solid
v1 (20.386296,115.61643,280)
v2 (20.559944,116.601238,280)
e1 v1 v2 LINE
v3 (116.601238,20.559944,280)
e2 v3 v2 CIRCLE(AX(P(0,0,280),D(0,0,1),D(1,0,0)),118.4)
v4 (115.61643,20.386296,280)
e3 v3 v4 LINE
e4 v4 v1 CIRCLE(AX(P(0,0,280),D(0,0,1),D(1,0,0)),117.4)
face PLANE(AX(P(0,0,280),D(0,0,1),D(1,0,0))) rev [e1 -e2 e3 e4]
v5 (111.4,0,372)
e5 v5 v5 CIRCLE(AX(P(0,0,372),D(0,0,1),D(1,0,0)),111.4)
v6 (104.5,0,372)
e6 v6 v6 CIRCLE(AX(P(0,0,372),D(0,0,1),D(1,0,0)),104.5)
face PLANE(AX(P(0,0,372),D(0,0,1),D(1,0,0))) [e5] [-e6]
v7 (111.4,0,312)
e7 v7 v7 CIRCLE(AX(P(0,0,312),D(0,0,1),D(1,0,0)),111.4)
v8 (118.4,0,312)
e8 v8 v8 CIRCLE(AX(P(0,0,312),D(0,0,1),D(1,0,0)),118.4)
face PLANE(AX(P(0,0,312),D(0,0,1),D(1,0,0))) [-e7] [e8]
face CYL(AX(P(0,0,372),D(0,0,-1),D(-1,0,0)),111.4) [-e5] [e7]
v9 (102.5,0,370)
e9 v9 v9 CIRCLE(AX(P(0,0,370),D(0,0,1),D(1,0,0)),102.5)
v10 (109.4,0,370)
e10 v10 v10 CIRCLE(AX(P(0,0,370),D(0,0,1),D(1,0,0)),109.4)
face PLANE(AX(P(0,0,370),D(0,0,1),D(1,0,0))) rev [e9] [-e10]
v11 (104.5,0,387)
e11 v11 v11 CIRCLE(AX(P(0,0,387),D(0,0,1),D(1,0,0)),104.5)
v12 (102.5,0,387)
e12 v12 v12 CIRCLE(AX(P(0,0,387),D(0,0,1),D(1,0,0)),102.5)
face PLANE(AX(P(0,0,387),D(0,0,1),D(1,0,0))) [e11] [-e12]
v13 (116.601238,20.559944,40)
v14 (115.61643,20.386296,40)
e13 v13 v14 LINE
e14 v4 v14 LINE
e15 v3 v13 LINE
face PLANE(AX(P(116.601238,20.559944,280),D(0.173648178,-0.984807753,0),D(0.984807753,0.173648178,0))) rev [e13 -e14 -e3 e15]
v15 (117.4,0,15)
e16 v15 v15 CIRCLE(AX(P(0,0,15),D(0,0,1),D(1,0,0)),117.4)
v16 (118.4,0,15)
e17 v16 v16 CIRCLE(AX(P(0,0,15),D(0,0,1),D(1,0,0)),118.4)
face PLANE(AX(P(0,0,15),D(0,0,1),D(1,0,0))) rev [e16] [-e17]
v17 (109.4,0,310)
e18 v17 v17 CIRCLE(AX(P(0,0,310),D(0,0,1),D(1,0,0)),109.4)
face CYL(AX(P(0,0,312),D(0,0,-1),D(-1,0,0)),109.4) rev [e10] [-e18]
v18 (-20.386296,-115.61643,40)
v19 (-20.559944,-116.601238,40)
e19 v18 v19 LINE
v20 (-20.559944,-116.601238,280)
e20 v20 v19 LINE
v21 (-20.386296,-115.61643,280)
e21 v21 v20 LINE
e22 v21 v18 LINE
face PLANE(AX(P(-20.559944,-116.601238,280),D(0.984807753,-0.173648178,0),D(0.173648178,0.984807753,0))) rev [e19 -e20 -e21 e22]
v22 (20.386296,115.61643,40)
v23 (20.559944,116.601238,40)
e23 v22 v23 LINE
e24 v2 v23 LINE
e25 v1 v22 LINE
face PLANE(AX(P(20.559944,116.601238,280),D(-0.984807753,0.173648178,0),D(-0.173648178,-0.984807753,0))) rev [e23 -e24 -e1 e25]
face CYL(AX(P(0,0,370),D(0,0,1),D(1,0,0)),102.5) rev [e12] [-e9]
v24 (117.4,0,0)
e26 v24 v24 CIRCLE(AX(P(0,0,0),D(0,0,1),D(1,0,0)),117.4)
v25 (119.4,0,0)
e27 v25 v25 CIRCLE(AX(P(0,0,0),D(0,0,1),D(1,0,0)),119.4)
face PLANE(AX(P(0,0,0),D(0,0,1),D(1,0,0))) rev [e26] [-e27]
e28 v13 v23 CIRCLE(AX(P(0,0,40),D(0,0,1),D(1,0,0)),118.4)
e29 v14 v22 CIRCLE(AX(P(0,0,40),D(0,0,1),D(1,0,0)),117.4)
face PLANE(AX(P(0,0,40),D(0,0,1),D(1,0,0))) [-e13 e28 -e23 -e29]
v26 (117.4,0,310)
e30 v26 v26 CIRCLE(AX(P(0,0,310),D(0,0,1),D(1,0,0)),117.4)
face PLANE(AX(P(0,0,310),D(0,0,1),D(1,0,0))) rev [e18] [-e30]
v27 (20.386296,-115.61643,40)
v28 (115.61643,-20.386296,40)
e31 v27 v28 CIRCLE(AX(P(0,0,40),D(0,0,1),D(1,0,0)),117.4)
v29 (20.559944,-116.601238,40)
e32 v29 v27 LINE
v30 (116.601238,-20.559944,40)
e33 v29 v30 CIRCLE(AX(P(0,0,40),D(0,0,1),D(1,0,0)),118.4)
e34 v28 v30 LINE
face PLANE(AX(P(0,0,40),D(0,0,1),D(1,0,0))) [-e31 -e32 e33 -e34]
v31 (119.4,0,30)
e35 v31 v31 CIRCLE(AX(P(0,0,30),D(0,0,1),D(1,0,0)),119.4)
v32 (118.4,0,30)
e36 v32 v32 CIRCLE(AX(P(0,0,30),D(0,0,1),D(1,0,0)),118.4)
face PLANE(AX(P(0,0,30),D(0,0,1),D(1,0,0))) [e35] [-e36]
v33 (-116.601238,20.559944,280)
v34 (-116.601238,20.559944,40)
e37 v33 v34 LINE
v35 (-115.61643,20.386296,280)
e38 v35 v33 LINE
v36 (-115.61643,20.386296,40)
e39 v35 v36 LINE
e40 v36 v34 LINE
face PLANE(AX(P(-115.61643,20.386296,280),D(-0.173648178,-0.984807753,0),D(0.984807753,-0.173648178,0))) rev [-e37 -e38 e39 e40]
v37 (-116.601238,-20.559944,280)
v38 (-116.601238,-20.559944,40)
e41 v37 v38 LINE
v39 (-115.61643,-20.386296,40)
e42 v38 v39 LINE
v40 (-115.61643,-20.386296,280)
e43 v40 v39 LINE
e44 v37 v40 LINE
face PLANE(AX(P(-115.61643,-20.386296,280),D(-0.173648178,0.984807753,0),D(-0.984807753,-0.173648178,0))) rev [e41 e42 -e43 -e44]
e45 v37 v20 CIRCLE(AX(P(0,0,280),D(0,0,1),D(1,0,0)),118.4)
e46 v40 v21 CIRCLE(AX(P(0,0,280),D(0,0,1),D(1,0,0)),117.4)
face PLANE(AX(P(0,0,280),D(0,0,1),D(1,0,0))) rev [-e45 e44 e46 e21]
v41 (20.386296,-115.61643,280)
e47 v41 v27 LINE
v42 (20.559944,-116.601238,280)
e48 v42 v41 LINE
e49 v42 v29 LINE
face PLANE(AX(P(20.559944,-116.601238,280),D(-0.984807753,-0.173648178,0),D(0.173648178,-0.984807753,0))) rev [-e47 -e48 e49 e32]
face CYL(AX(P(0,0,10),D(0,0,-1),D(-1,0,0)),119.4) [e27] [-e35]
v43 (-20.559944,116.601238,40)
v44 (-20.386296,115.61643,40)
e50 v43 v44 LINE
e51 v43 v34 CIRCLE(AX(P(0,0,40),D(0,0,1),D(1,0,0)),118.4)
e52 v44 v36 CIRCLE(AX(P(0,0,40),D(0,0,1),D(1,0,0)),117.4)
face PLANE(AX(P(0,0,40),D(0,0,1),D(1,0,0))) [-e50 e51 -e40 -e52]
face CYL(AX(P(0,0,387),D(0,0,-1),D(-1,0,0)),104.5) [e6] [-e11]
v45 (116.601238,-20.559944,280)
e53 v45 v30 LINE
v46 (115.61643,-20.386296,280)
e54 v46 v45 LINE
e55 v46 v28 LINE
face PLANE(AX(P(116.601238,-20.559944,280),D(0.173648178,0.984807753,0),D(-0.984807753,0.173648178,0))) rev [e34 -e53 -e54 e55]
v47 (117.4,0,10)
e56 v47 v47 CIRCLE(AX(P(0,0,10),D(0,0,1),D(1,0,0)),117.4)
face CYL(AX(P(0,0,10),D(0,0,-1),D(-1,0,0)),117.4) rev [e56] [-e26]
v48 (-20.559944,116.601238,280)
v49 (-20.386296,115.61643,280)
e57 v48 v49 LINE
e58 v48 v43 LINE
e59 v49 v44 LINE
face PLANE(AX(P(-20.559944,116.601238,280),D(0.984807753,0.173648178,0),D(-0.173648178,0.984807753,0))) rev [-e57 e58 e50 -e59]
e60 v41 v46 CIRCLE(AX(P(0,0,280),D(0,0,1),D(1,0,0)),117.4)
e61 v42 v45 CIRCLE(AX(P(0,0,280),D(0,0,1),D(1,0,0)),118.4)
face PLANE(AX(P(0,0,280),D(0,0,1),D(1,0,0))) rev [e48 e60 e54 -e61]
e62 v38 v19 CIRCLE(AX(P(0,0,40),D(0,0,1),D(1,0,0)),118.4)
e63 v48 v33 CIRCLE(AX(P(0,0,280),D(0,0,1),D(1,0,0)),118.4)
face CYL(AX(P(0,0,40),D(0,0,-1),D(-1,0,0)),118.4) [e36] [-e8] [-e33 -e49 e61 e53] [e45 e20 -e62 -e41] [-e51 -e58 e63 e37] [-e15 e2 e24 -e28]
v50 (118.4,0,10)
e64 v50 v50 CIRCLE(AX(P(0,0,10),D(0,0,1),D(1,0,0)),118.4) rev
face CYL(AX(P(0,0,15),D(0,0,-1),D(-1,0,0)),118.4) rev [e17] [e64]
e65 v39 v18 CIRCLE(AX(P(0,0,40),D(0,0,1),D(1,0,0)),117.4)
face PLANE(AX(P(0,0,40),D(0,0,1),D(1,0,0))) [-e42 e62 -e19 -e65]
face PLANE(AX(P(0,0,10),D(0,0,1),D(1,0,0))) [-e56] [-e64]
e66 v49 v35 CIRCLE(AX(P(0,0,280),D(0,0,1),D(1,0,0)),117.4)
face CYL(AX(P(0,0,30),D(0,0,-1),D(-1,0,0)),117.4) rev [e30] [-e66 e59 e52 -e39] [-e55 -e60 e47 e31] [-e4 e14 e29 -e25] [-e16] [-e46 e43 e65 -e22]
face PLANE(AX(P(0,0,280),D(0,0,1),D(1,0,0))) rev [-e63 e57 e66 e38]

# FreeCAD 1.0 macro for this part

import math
import FreeCAD as App
import Part
import Sketcher

V = App.Vector
Q = App.Units.Quantity

doc = App.newDocument("Part")
body = doc.addObject("PartDesign::Body", "Body")

# Sketch on XY plane
sketch1 = body.newObject("Sketcher::SketchObject", "Sketch")
sketch1.AttachmentSupport = (doc.getObject("XY_Plane"), [""])
sketch1.MapMode = "FlatFace"
sketch1.addGeometry([
    Part.Circle(V(0, 0, 0), V(0, 0, 1), 119),
    Part.Circle(V(0, 0, 0), V(0, 0, 1), 117),
], False)
sketch1.addConstraint([
    Sketcher.Constraint("Coincident", 0, 3, -1, 1),
    Sketcher.Constraint("Coincident", 1, 3, -1, 1),
    Sketcher.Constraint("Diameter", 0, Q("238.8 mm")),
    Sketcher.Constraint("Diameter", 1, Q("234.8 mm")),
])
pad1 = body.newObject("PartDesign::Pad", "Pad")
pad1.Profile = sketch1
pad1.Length = 10

# Sketch on XY plane
sketch2 = body.newObject("Sketcher::SketchObject", "Sketch001")
sketch2.AttachmentSupport = (doc.getObject("XY_Plane"), [""])
sketch2.MapMode = "FlatFace"
sketch2.AttachmentOffset = App.Placement(V(0, 0, 10), App.Rotation())
sketch2.addGeometry([
    Part.Circle(V(0, 0, 0), V(0, 0, 1), 119),
    Part.Circle(V(0, 0, 0), V(0, 0, 1), 118),
], False)
sketch2.addConstraint([
    Sketcher.Constraint("Coincident", 0, 3, -1, 1),
    Sketcher.Constraint("Coincident", 1, 3, -1, 1),
    Sketcher.Constraint("Diameter", 0, Q("238.8 mm")),
    Sketcher.Constraint("Diameter", 1, Q("236.8 mm")),
])
pad2 = body.newObject("PartDesign::Pad", "Pad001")
pad2.Profile = sketch2
pad2.Length = 5

# Sketch on XY plane
sketch3 = body.newObject("Sketcher::SketchObject", "Sketch002")
sketch3.AttachmentSupport = (doc.getObject("XY_Plane"), [""])
sketch3.MapMode = "FlatFace"
sketch3.AttachmentOffset = App.Placement(V(0, 0, 15), App.Rotation())
sketch3.addGeometry([
    Part.Circle(V(0, 0, 0), V(0, 0, 1), 119),
    Part.Circle(V(0, 0, 0), V(0, 0, 1), 117),
], False)
sketch3.addConstraint([
    Sketcher.Constraint("Coincident", 0, 3, -1, 1),
    Sketcher.Constraint("Coincident", 1, 3, -1, 1),
    Sketcher.Constraint("Diameter", 0, Q("238.8 mm")),
    Sketcher.Constraint("Diameter", 1, Q("234.8 mm")),
])
pad3 = body.newObject("PartDesign::Pad", "Pad002")
pad3.Profile = sketch3
pad3.Length = 15

# Sketch on XY plane
sketch4 = body.newObject("Sketcher::SketchObject", "Sketch003")
sketch4.AttachmentSupport = (doc.getObject("XY_Plane"), [""])
sketch4.MapMode = "FlatFace"
sketch4.AttachmentOffset = App.Placement(V(0, 0, 30), App.Rotation())
sketch4.addGeometry([
    Part.Circle(V(0, 0, 0), V(0, 0, 1), 118),
    Part.Circle(V(0, 0, 0), V(0, 0, 1), 117),
], False)
sketch4.addConstraint([
    Sketcher.Constraint("Coincident", 0, 3, -1, 1),
    Sketcher.Constraint("Coincident", 1, 3, -1, 1),
    Sketcher.Constraint("Diameter", 0, Q("236.8 mm")),
    Sketcher.Constraint("Diameter", 1, Q("234.8 mm")),
])
pad4 = body.newObject("PartDesign::Pad", "Pad003")
pad4.Profile = sketch4
pad4.Length = 10

# Sketch on XY plane
sketch5 = body.newObject("Sketcher::SketchObject", "Sketch004")
sketch5.AttachmentSupport = (doc.getObject("XY_Plane"), [""])
sketch5.MapMode = "FlatFace"
sketch5.AttachmentOffset = App.Placement(V(0, 0, 40), App.Rotation())
sketch5.addGeometry([
    Part.LineSegment(V(20.386296, 115.61643, 0), V(20.559944, 116.601238, 0)),  # 0
    Part.ArcOfCircle(Part.Circle(V(0, 0, 0), V(0, 0, 1), 118.4), math.radians(80), math.radians(100)),  # 1
    Part.LineSegment(V(-20.559944, 116.601238, 0), V(-20.386296, 115.61643, 0)),  # 2
    Part.ArcOfCircle(Part.Circle(V(0, 0.000014, 0), V(0, 0, 1), 117.399986), math.radians(79.999999), math.radians(100.000001)),  # 3
    Part.LineSegment(V(116.601238, 20.559944, 0), V(115.61643, 20.386296, 0)),  # 4
    Part.ArcOfCircle(Part.Circle(V(0.000014, 0, 0), V(0, 0, 1), 117.399986), math.radians(-10.000001), math.radians(10.000001)),  # 5
    Part.LineSegment(V(115.61643, -20.386296, 0), V(116.601238, -20.559944, 0)),  # 6
    Part.ArcOfCircle(Part.Circle(V(0, 0, 0), V(0, 0, 1), 118.4), math.radians(-10), math.radians(10)),  # 7
    Part.LineSegment(V(20.559944, -116.601238, 0), V(20.386296, -115.61643, 0)),  # 8
    Part.ArcOfCircle(Part.Circle(V(0, -0.000014, 0), V(0, 0, 1), 117.399986), math.radians(-100.000001), math.radians(-79.999999)),  # 9
    Part.LineSegment(V(-20.386296, -115.61643, 0), V(-20.559944, -116.601238, 0)),  # 10
    Part.ArcOfCircle(Part.Circle(V(0, 0, 0), V(0, 0, 1), 118.4), math.radians(-100), math.radians(-80)),  # 11
    Part.LineSegment(V(-116.601238, -20.559944, 0), V(-115.61643, -20.386296, 0)),  # 12
    Part.ArcOfCircle(Part.Circle(V(-0.000014, 0, 0), V(0, 0, 1), 117.399986), math.radians(169.999999), math.radians(190.000001)),  # 13
    Part.LineSegment(V(-115.61643, 20.386296, 0), V(-116.601238, 20.559944, 0)),  # 14
    Part.ArcOfCircle(Part.Circle(V(0, 0, 0), V(0, 0, 1), 118.4), math.radians(170), math.radians(190)),  # 15
], False)
sketch5.addConstraint([
    Sketcher.Constraint("Coincident", 0, 2, 1, 1),
    Sketcher.Constraint("Coincident", 1, 2, 2, 1),
    Sketcher.Constraint("Coincident", 2, 2, 3, 2),
    Sketcher.Constraint("Coincident", 3, 1, 0, 1),
    Sketcher.Constraint("Coincident", 4, 2, 5, 2),
    Sketcher.Constraint("Coincident", 5, 1, 6, 1),
    Sketcher.Constraint("Coincident", 6, 2, 7, 1),
    Sketcher.Constraint("Coincident", 7, 2, 4, 1),
    Sketcher.Constraint("Coincident", 8, 2, 9, 2),
    Sketcher.Constraint("Coincident", 9, 1, 10, 1),
    Sketcher.Constraint("Coincident", 10, 2, 11, 1),
    Sketcher.Constraint("Coincident", 11, 2, 8, 1),
    Sketcher.Constraint("Coincident", 12, 2, 13, 2),
    Sketcher.Constraint("Coincident", 13, 1, 14, 1),
    Sketcher.Constraint("Coincident", 14, 2, 15, 1),
    Sketcher.Constraint("Coincident", 15, 2, 12, 1),
    Sketcher.Constraint("Coincident", 1, 3, -1, 1),
    Sketcher.Constraint("Coincident", 7, 3, -1, 1),
    Sketcher.Constraint("Coincident", 11, 3, -1, 1),
    Sketcher.Constraint("Coincident", 15, 3, -1, 1),
    Sketcher.Constraint("Equal", 3, 5),
    Sketcher.Constraint("Equal", 1, 7),
    Sketcher.Constraint("Equal", 5, 9),
    Sketcher.Constraint("Equal", 7, 11),
    Sketcher.Constraint("Equal", 9, 13),
    Sketcher.Constraint("Equal", 11, 15),
    Sketcher.Constraint("Symmetric", 3, 3, 9, 3, -1, 1),
    Sketcher.Constraint("Symmetric", 5, 3, 13, 3, -1, 1),
    Sketcher.Constraint("Symmetric", 2, 2, 3, 1, -2),
    Sketcher.Constraint("Symmetric", 5, 1, 12, 2, -2),
    Sketcher.Constraint("Perpendicular", 2, 4),
    Sketcher.Constraint("Perpendicular", 0, 6),
    Sketcher.Constraint("Perpendicular", 4, 8),
    Sketcher.Constraint("Perpendicular", 6, 10),
    Sketcher.Constraint("Perpendicular", 8, 12),
    Sketcher.Constraint("Perpendicular", 10, 14),
    Sketcher.Constraint("Horizontal", 0, 2, 1, 2),
    Sketcher.Constraint("Horizontal", 8, 2, 9, 1),
    Sketcher.Constraint("Horizontal", 4, 2, 13, 1),
    Sketcher.Constraint("Vertical", 4, 2, 5, 1),
    Sketcher.Constraint("Vertical", 3, 1, 8, 2),
    Sketcher.Constraint("Equal", 2, 4),
    Sketcher.Constraint("Radius", 1, Q("118.4 mm")),
    Sketcher.Constraint("Angle", 0, Q("80.000012 deg")),
    Sketcher.Constraint("Distance", 0, Q("1 mm")),
    Sketcher.Constraint("Radius", 3, Q("117.399986 mm")),
    Sketcher.Constraint("DistanceY", -1, 1, 1, 2, Q("116.601238 mm")),
    Sketcher.Constraint("DistanceX", -1, 1, 4, 2, Q("115.61643 mm")),
])
pad5 = body.newObject("PartDesign::Pad", "Pad004")
pad5.Profile = sketch5
pad5.Length = 240

# Sketch on XY plane
sketch6 = body.newObject("Sketcher::SketchObject", "Sketch005")
sketch6.AttachmentSupport = (doc.getObject("XY_Plane"), [""])
sketch6.MapMode = "FlatFace"
sketch6.AttachmentOffset = App.Placement(V(0, 0, 280), App.Rotation())
sketch6.addGeometry([
    Part.Circle(V(0, 0, 0), V(0, 0, 1), 118),
    Part.Circle(V(0, 0, 0), V(0, 0, 1), 117),
], False)
sketch6.addConstraint([
    Sketcher.Constraint("Coincident", 0, 3, -1, 1),
    Sketcher.Constraint("Coincident", 1, 3, -1, 1),
    Sketcher.Constraint("Diameter", 0, Q("236.8 mm")),
    Sketcher.Constraint("Diameter", 1, Q("234.8 mm")),
])
pad6 = body.newObject("PartDesign::Pad", "Pad005")
pad6.Profile = sketch6
pad6.Length = 30

# Sketch on XY plane
sketch7 = body.newObject("Sketcher::SketchObject", "Sketch006")
sketch7.AttachmentSupport = (doc.getObject("XY_Plane"), [""])
sketch7.MapMode = "FlatFace"
sketch7.AttachmentOffset = App.Placement(V(0, 0, 310), App.Rotation())
sketch7.addGeometry([
    Part.Circle(V(0, 0, 0), V(0, 0, 1), 118),
    Part.Circle(V(0, 0, 0), V(0, 0, 1), 109),
], False)
sketch7.addConstraint([
    Sketcher.Constraint("Coincident", 0, 3, -1, 1),
    Sketcher.Constraint("Coincident", 1, 3, -1, 1),
    Sketcher.Constraint("Diameter", 0, Q("236.8 mm")),
    Sketcher.Constraint("Diameter", 1, Q("218.8 mm")),
])
pad7 = body.newObject("PartDesign::Pad", "Pad006")
pad7.Profile = sketch7
pad7.Length = 2

# Sketch on XY plane
sketch8 = body.newObject("Sketcher::SketchObject", "Sketch007")
sketch8.AttachmentSupport = (doc.getObject("XY_Plane"), [""])
sketch8.MapMode = "FlatFace"
sketch8.AttachmentOffset = App.Placement(V(0, 0, 312), App.Rotation())
sketch8.addGeometry([
    Part.Circle(V(0, 0, 0), V(0, 0, 1), 111),
    Part.Circle(V(0, 0, 0), V(0, 0, 1), 109),
], False)
sketch8.addConstraint([
    Sketcher.Constraint("Coincident", 0, 3, -1, 1),
    Sketcher.Constraint("Coincident", 1, 3, -1, 1),
    Sketcher.Constraint("Diameter", 0, Q("222.8 mm")),
    Sketcher.Constraint("Diameter", 1, Q("218.8 mm")),
])
pad8 = body.newObject("PartDesign::Pad", "Pad007")
pad8.Profile = sketch8
pad8.Length = 60

# Sketch on XY plane
sketch9 = body.newObject("Sketcher::SketchObject", "Sketch008")
sketch9.AttachmentSupport = (doc.getObject("XY_Plane"), [""])
sketch9.MapMode = "FlatFace"
sketch9.AttachmentOffset = App.Placement(V(0, 0, 372), App.Rotation())
sketch9.addGeometry([
    Part.Circle(V(0, 0, 0), V(0, 0, 1), 111),
    Part.Circle(V(0, 0, 0), V(0, 0, 1), 102),
], False)
sketch9.addConstraint([
    Sketcher.Constraint("Coincident", 0, 3, -1, 1),
    Sketcher.Constraint("Coincident", 1, 3, -1, 1),
    Sketcher.Constraint("Diameter", 1, Q("205 mm")),
    Sketcher.Constraint("Diameter", 0, Q("222.8 mm")),
])
pad9 = body.newObject("PartDesign::Pad", "Pad008")
pad9.Profile = sketch9
pad9.Length = 2
pad9.Reversed = True

# Sketch on XY plane
sketch10 = body.newObject("Sketcher::SketchObject", "Sketch009")
sketch10.AttachmentSupport = (doc.getObject("XY_Plane"), [""])
sketch10.MapMode = "FlatFace"
sketch10.AttachmentOffset = App.Placement(V(0, 0, 372), App.Rotation())
sketch10.addGeometry([
    Part.Circle(V(0, 0, 0), V(0, 0, 1), 104),
    Part.Circle(V(0, 0, 0), V(0, 0, 1), 102),
], False)
sketch10.addConstraint([
    Sketcher.Constraint("Coincident", 0, 3, -1, 1),
    Sketcher.Constraint("Coincident", 1, 3, -1, 1),
    Sketcher.Constraint("Diameter", 0, Q("209 mm")),
    Sketcher.Constraint("Diameter", 1, Q("205 mm")),
])
pad10 = body.newObject("PartDesign::Pad", "Pad009")
pad10.Profile = sketch10
pad10.Length = 15

doc.recompute()
